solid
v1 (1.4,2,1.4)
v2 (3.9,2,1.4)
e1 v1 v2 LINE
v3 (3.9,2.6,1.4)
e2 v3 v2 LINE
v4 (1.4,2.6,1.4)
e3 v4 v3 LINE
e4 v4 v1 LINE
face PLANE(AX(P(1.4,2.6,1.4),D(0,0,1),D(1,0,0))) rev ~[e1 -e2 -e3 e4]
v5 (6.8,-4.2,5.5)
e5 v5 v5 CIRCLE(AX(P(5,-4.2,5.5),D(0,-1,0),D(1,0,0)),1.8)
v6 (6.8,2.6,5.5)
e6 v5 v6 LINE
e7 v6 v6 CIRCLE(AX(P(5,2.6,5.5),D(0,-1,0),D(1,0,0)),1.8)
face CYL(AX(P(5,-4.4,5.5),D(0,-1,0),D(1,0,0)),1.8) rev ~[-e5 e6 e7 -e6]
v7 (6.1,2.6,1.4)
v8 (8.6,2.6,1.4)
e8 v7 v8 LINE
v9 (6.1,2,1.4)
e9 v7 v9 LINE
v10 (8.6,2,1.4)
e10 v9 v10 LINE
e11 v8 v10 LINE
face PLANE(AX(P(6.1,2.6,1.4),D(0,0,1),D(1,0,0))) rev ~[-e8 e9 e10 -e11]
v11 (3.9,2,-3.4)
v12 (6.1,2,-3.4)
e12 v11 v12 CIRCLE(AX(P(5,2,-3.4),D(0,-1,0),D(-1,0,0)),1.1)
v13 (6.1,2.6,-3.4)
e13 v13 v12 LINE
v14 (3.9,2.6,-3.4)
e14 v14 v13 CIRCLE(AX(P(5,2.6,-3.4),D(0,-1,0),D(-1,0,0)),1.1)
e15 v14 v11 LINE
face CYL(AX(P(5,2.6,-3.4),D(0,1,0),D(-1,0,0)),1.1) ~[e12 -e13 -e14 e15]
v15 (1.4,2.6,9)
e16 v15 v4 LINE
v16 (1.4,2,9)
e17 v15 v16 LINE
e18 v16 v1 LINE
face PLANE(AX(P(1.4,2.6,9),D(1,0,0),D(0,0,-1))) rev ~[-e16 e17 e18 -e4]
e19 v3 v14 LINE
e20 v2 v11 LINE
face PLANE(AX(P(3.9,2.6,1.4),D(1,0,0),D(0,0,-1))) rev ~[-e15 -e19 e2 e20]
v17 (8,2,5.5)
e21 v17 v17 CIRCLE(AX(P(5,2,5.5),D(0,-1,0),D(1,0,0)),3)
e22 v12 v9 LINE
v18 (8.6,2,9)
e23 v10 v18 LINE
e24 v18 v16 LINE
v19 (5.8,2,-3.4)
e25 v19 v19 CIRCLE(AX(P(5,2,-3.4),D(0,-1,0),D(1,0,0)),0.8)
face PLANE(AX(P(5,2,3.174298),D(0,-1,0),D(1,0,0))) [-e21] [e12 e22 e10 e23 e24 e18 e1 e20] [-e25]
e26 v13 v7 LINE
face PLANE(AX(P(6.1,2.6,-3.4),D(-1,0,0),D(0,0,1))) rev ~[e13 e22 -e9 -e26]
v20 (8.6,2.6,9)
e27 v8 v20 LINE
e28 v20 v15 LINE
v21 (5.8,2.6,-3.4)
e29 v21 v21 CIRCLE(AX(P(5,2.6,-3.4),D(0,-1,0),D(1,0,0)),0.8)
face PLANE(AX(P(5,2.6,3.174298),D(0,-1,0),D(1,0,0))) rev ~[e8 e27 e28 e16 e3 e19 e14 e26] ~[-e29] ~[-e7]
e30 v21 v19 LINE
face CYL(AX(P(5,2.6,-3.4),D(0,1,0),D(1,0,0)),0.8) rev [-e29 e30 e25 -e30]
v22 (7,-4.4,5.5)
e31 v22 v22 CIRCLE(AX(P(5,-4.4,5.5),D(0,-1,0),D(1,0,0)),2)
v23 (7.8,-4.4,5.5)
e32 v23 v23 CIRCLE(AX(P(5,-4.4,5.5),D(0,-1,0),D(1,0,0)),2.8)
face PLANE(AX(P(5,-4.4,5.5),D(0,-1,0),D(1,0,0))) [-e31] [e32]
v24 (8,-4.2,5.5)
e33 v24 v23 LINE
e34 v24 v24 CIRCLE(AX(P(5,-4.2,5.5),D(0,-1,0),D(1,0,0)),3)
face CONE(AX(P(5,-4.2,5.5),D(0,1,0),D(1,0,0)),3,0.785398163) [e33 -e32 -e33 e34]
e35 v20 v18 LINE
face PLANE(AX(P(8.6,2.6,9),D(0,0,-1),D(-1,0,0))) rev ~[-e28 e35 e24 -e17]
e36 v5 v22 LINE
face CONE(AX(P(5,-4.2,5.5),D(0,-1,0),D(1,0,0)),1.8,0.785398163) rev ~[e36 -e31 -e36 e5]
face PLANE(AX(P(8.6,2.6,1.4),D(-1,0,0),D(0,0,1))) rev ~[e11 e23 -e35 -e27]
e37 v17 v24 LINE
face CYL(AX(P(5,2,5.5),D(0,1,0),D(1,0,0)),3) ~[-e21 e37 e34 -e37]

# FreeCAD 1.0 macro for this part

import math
import FreeCAD as App
import Part
import Sketcher
from FreeCAD import Vector


def edges_at(feature, points):
    """Names of the edges that pass closest to the given points."""
    edges = feature.Shape.Edges
    near = lambda p: min(range(len(edges)), key=lambda i: edges[i].distToShape(Part.Vertex(*p))[0])
    return sorted({f"Edge{near(p) + 1}" for p in points})

doc = App.newDocument("Part")
body = doc.addObject("PartDesign::Body", "Body")

# Sketch on XZ plane
sketch1 = body.newObject("Sketcher::SketchObject", "Sketch")
sketch1.AttachmentSupport = (doc.getObject("XZ_Plane"), [""])
sketch1.MapMode = "FlatFace"
sketch1.addGeometry(Part.LineSegment(Vector(7.2, 7.6, 0), Vector(0, 7.6, 0)), False)
sketch1.addGeometry(Part.LineSegment(Vector(0, 7.6, 0), Vector(0, 0, 0)), False)
sketch1.addGeometry(Part.LineSegment(Vector(0, 0, 0), Vector(2.5, 0, 0)), False)
sketch1.addGeometry(Part.LineSegment(Vector(2.5, 0, 0), Vector(2.5, -4.8, 0)), False)
sketch1.addGeometry(Part.ArcOfCircle(Part.Circle(Vector(3.6, -4.8, 0), Vector(0, 0, 1), 1.1), math.radians(180), math.radians(360)), False)
sketch1.addGeometry(Part.LineSegment(Vector(4.7, -4.8, 0), Vector(4.7, 0, 0)), False)
sketch1.addGeometry(Part.LineSegment(Vector(4.7, 0, 0), Vector(7.2, 0, 0)), False)
sketch1.addGeometry(Part.LineSegment(Vector(7.2, 0, 0), Vector(7.2, 7.6, 0)), False)
sketch1.addGeometry(Part.Circle(Vector(3.6, -4.8, 0), Vector(0, 0, 1), 0.8), False)
sketch1.addConstraint(Sketcher.Constraint("Coincident", 0, 2, 1, 1))
sketch1.addConstraint(Sketcher.Constraint("Coincident", 1, 2, 2, 1))
sketch1.addConstraint(Sketcher.Constraint("Coincident", 2, 2, 3, 1))
sketch1.addConstraint(Sketcher.Constraint("Tangent", 3, 2, 4, 1))
sketch1.addConstraint(Sketcher.Constraint("Tangent", 4, 2, 5, 1))
sketch1.addConstraint(Sketcher.Constraint("Coincident", 5, 2, 6, 1))
sketch1.addConstraint(Sketcher.Constraint("Coincident", 6, 2, 7, 1))
sketch1.addConstraint(Sketcher.Constraint("Coincident", 7, 2, 0, 1))
sketch1.addConstraint(Sketcher.Constraint("Horizontal", 0))
sketch1.addConstraint(Sketcher.Constraint("Vertical", 1))
sketch1.addConstraint(Sketcher.Constraint("Horizontal", 2))
sketch1.addConstraint(Sketcher.Constraint("Vertical", 3))
sketch1.addConstraint(Sketcher.Constraint("Vertical", 5))
sketch1.addConstraint(Sketcher.Constraint("Horizontal", 6))
sketch1.addConstraint(Sketcher.Constraint("Vertical", 7))
sketch1.addConstraint(Sketcher.Constraint("Coincident", 1, 2, -1, 1))
sketch1.addConstraint(Sketcher.Constraint("Coincident", 8, 3, 4, 3))
sketch1.addConstraint(Sketcher.Constraint("PointOnObject", 5, 2, -1))
sketch1.addConstraint(Sketcher.Constraint("Equal", 2, 6))
sketch1.addConstraint(Sketcher.Constraint("Diameter", 8, 1.6))
sketch1.addConstraint(Sketcher.Constraint("Radius", 4, 1.1))
sketch1.addConstraint(Sketcher.Constraint("DistanceX", 0, 2, 0, 1, 7.2))
sketch1.addConstraint(Sketcher.Constraint("DistanceY", 1, 2, 1, 1, 7.6))
sketch1.addConstraint(Sketcher.Constraint("DistanceY", 3, 2, 3, 1, 4.8))
pad1 = body.newObject("PartDesign::Pad", "Pad")
pad1.Profile = sketch1
pad1.Length = 0.6

# Sketch on XZ plane
sketch2 = body.newObject("Sketcher::SketchObject", "Sketch001")
sketch2.AttachmentSupport = (doc.getObject("XZ_Plane"), [""])
sketch2.MapMode = "FlatFace"
sketch2.AttachmentOffset = App.Placement(Vector(0, 0, 0.6), App.Rotation())
sketch2.addGeometry(Part.Circle(Vector(3.6, 4.1, 0), Vector(0, 0, 1), 3), False)
sketch2.addConstraint(Sketcher.Constraint("Diameter", 0, 6.0))
sketch2.addConstraint(Sketcher.Constraint("DistanceX", -1, 1, 0, 3, 3.6))
sketch2.addConstraint(Sketcher.Constraint("DistanceY", -1, 1, 0, 3, 4.1))
pad2 = body.newObject("PartDesign::Pad", "Pad001")
pad2.Profile = sketch2
pad2.Length = 6.4

# Sketch on XZ plane
sketch3 = body.newObject("Sketcher::SketchObject", "Sketch002")
sketch3.AttachmentSupport = (doc.getObject("XZ_Plane"), [""])
sketch3.MapMode = "FlatFace"
sketch3.AttachmentOffset = App.Placement(Vector(0, 0, 7), App.Rotation())
sketch3.addGeometry(Part.Circle(Vector(3.6, 4.1, 0), Vector(0, 0, 1), 1.8), False)
sketch3.addConstraint(Sketcher.Constraint("Diameter", 0, 3.6))
sketch3.addConstraint(Sketcher.Constraint("DistanceX", -1, 1, 0, 3, 3.6))
sketch3.addConstraint(Sketcher.Constraint("DistanceY", -1, 1, 0, 3, 4.1))
pocket1 = body.newObject("PartDesign::Pocket", "Pocket")
pocket1.Profile = sketch3
pocket1.Length = 9
doc.recompute()

chamfer = body.newObject("PartDesign::Chamfer", "Chamfer")
chamfer.Base = (pocket1, edges_at(pocket1, [(0.6, -7, 4.1), (1.8, -7, 4.1)]))
chamfer.Size = 0.2
body2 = doc.addObject("PartDesign::Body", "Body001")
doc.recompute()

body.Placement = App.Placement(Vector(1.4, 2.6, 1.4), App.Rotation(Vector(0, 0, 1), 0))
boolean = body2.newObject("PartDesign::Boolean", "Boolean")
boolean.Type = "Fuse"
boolean.addObjects([body])

doc.recompute()
